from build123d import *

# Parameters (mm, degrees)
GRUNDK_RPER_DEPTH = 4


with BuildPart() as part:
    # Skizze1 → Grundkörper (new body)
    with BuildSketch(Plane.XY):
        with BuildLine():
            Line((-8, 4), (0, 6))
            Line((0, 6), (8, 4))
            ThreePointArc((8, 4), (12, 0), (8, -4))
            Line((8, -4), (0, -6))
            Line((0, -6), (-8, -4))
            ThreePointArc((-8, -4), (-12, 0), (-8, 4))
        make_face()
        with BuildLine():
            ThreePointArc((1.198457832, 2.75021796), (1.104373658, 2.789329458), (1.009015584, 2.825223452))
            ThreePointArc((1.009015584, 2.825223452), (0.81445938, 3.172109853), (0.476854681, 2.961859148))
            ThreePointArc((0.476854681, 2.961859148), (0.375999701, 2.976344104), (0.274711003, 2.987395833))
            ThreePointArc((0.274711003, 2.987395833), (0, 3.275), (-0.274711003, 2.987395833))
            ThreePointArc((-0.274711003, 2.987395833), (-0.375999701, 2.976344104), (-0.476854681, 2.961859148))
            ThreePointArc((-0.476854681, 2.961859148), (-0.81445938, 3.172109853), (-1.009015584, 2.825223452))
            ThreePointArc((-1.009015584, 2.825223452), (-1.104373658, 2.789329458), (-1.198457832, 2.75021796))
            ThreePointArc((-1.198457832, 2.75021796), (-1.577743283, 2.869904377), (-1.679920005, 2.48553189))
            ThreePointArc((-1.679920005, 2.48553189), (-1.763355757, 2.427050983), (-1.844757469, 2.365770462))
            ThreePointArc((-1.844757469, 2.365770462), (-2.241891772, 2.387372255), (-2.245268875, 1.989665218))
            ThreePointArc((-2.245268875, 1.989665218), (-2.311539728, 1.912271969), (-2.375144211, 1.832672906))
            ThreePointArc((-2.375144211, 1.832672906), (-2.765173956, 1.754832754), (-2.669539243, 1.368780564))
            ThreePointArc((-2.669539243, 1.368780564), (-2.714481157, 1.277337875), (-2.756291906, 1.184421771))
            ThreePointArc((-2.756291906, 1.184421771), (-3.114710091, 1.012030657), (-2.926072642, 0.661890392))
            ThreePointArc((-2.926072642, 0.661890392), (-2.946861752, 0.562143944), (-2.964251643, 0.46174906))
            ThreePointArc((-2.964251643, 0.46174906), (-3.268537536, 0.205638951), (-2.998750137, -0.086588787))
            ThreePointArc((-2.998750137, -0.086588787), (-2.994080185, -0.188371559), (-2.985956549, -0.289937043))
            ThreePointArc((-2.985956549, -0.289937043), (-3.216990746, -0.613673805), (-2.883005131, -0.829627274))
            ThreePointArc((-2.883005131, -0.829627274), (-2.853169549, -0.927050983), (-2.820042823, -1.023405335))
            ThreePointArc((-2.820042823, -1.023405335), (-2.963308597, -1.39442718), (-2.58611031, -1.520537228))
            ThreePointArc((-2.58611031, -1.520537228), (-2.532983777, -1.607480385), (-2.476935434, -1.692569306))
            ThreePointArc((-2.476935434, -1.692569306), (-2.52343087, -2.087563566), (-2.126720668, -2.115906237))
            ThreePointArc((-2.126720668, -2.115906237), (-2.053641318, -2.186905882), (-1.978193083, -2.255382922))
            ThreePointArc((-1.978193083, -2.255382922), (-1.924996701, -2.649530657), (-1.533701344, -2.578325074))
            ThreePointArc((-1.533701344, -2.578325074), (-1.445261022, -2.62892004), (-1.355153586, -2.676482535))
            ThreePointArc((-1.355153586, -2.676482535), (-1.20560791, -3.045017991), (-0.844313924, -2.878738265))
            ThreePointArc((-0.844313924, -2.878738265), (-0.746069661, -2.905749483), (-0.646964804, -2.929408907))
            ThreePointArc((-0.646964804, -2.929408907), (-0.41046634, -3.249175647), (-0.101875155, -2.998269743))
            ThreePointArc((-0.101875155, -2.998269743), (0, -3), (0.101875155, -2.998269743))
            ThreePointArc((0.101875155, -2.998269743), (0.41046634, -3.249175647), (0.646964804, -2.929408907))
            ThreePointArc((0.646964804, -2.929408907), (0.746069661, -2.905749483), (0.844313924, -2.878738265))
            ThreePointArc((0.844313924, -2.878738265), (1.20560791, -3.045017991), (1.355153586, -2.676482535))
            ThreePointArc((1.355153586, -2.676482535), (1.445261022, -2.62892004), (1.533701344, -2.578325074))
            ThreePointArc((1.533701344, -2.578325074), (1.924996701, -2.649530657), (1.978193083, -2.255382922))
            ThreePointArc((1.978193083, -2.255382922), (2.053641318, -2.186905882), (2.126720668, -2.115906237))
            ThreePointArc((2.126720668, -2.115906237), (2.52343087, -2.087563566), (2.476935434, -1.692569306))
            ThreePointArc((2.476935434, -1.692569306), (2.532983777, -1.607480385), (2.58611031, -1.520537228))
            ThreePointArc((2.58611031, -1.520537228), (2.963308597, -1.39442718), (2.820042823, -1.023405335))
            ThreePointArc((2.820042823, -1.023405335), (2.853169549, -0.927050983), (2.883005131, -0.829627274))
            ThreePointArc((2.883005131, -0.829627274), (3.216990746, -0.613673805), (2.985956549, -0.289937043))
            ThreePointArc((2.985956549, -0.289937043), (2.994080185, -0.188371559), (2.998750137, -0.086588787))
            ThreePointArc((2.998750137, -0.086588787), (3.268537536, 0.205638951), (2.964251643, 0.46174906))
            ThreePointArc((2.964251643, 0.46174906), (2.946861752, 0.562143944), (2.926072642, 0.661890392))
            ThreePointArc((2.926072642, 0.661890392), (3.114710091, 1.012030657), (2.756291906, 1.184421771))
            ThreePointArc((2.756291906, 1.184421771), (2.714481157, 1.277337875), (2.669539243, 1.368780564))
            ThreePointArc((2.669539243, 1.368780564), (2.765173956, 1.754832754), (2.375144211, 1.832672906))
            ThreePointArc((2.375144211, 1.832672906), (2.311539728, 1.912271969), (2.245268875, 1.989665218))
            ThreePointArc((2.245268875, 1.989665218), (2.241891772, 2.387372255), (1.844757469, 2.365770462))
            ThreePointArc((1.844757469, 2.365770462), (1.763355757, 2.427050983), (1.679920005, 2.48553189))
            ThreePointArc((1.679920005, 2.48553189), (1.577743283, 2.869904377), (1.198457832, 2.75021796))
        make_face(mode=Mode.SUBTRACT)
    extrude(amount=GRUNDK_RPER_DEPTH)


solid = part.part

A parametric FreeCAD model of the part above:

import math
import FreeCAD as App
import Part
import Sketcher

V = App.Vector
Q = App.Units.Quantity

doc = App.newDocument("Part")
params = doc.addObject("Spreadsheet::Sheet", "Params")
for row, (alias, value) in enumerate([
    ("sketch1_radius", "4 mm"),
    ("sketch1_radius2", "3 mm"),
    ("pad1_length", "4 mm"),
], start=1):
    params.set(f"A{row}", alias)
    params.set(f"B{row}", "=" + value)
    params.setAlias(f"B{row}", alias)

body = doc.addObject("PartDesign::Body", "Body")

sketch1 = doc.addObject("Sketcher::SketchObject", "Sketch")
body.addObject(sketch1)
sketch1.AttachmentSupport = (doc.XY_Plane, [""])
sketch1.MapMode = "FlatFace"
sketch1.addGeometry([
    Part.LineSegment(V(0, 6, 0), V(-8, 4, 0)),
    Part.ArcOfCircle(Part.Circle(V(-8, 0, 0), V(0, 0, 1), 4), math.radians(90), math.radians(270)),
    Part.LineSegment(V(-8, -4, 0), V(0, -6, 0)),
    Part.LineSegment(V(0, -6, 0), V(8, -4, 0)),
    Part.ArcOfCircle(Part.Circle(V(8, 0, 0), V(0, 0, 1), 4), math.radians(-90), math.radians(90)),
    Part.LineSegment(V(8, 4, 0), V(0, 6, 0)),
    Part.ArcOfCircle(Part.Circle(V(1.45, 2.63, 0), V(0, 0, 1), 0.28), math.radians(-31), math.radians(154)),
    Part.ArcOfCircle(Part.Circle(V(0, 0, 0), V(0, 0, 1), 3), math.radians(52.05), math.radians(55.95)),
    Part.ArcOfCircle(Part.Circle(V(2.05, 2.19, 0), V(0, 0, 1), 0.28), math.radians(-46), math.radians(139)),
    Part.ArcOfCircle(Part.Circle(V(0, 0, 0), V(0, 0, 1), 3), math.radians(37.65), math.radians(41.55)),
    Part.ArcOfCircle(Part.Circle(V(2.53, 1.61, 0), V(0, 0, 1), 0.28), math.radians(-60), math.radians(125)),
    Part.ArcOfCircle(Part.Circle(V(0, 0, 0), V(0, 0, 1), 3), math.radians(23.25), math.radians(27.15)),
    Part.ArcOfCircle(Part.Circle(V(2.85, 0.93, 0), V(0, 0, 1), 0.28), math.radians(-75), math.radians(111)),
    Part.ArcOfCircle(Part.Circle(V(0, 0, 0), V(0, 0, 1), 3), math.radians(8.85), math.radians(12.75)),
    Part.ArcOfCircle(Part.Circle(V(2.99, 0.19, 0), V(0, 0, 1), 0.28), math.radians(-89), math.radians(96)),
    Part.ArcOfCircle(Part.Circle(V(0, 0, 0), V(0, 0, 1), 3), math.radians(-5.55), math.radians(-1.65)),
    Part.ArcOfCircle(Part.Circle(V(2.95, -0.56, 0), V(0, 0, 1), 0.28), math.radians(-103), math.radians(82)),
    Part.ArcOfCircle(Part.Circle(V(0, 0, 0), V(0, 0, 1), 3), math.radians(-19.95), math.radians(-16.05)),
    Part.ArcOfCircle(Part.Circle(V(2.71, -1.28, 0), V(0, 0, 1), 0.28), math.radians(-118), math.radians(67)),
    Part.ArcOfCircle(Part.Circle(V(0, 0, 0), V(0, 0, 1), 3), math.radians(-34.35), math.radians(-30.45)),
    Part.ArcOfCircle(Part.Circle(V(2.31, -1.91, 0), V(0, 0, 1), 0.28), math.radians(-132), math.radians(53)),
    Part.ArcOfCircle(Part.Circle(V(0, 0, 0), V(0, 0, 1), 3), math.radians(-48.75), math.radians(-44.85)),
    Part.ArcOfCircle(Part.Circle(V(1.76, -2.43, 0), V(0, 0, 1), 0.28), math.radians(-147), math.radians(39)),
    Part.ArcOfCircle(Part.Circle(V(0, 0, 0), V(0, 0, 1), 3), math.radians(-63.15), math.radians(-59.25)),
    Part.ArcOfCircle(Part.Circle(V(1.1, -2.79, 0), V(0, 0, 1), 0.28), math.radians(-161), math.radians(24)),
    Part.ArcOfCircle(Part.Circle(V(0, 0, 0), V(0, 0, 1), 3), math.radians(-77.55), math.radians(-73.65)),
    Part.ArcOfCircle(Part.Circle(V(0.38, -2.98, 0), V(0, 0, 1), 0.28), math.radians(-175), math.radians(10)),
    Part.ArcOfCircle(Part.Circle(V(0, 0, 0), V(0, 0, 1), 3), math.radians(-91.95), math.radians(-88.05)),
    Part.ArcOfCircle(Part.Circle(V(-0.38, -2.98, 0), V(0, 0, 1), 0.28), math.radians(170), math.radians(355)),
    Part.ArcOfCircle(Part.Circle(V(0, 0, 0), V(0, 0, 1), 3), math.radians(-106.35), math.radians(-102.45)),
    Part.ArcOfCircle(Part.Circle(V(-1.1, -2.79, 0), V(0, 0, 1), 0.28), math.radians(156), math.radians(341)),
    Part.ArcOfCircle(Part.Circle(V(0, 0, 0), V(0, 0, 1), 3), math.radians(-120.75), math.radians(-116.85)),
    Part.ArcOfCircle(Part.Circle(V(-1.76, -2.43, 0), V(0, 0, 1), 0.28), math.radians(141), math.radians(327)),
    Part.ArcOfCircle(Part.Circle(V(0, 0, 0), V(0, 0, 1), 3), math.radians(-135.15), math.radians(-131.25)),
    Part.ArcOfCircle(Part.Circle(V(-2.31, -1.91, 0), V(0, 0, 1), 0.28), math.radians(127), math.radians(312)),
    Part.ArcOfCircle(Part.Circle(V(0, 0, 0), V(0, 0, 1), 3), math.radians(-149.55), math.radians(-145.65)),
    Part.ArcOfCircle(Part.Circle(V(-2.71, -1.28, 0), V(0, 0, 1), 0.28), math.radians(113), math.radians(298)),
    Part.ArcOfCircle(Part.Circle(V(0, 0, 0), V(0, 0, 1), 3), math.radians(-163.95), math.radians(-160.05)),
    Part.ArcOfCircle(Part.Circle(V(-2.95, -0.56, 0), V(0, 0, 1), 0.28), math.radians(98), math.radians(283)),
    Part.ArcOfCircle(Part.Circle(V(0, 0, 0), V(0, 0, 1), 3), math.radians(-178.35), math.radians(-174.45)),
    Part.ArcOfCircle(Part.Circle(V(-2.99, 0.19, 0), V(0, 0, 1), 0.28), math.radians(84), math.radians(269)),
    Part.ArcOfCircle(Part.Circle(V(0, 0, 0), V(0, 0, 1), 3), math.radians(167.25), math.radians(171.15)),
    Part.ArcOfCircle(Part.Circle(V(-2.85, 0.93, 0), V(0, 0, 1), 0.28), math.radians(69), math.radians(255)),
    Part.ArcOfCircle(Part.Circle(V(0, 0, 0), V(0, 0, 1), 3), math.radians(152.85), math.radians(156.75)),
    Part.ArcOfCircle(Part.Circle(V(-2.53, 1.61, 0), V(0, 0, 1), 0.28), math.radians(55), math.radians(240)),
    Part.ArcOfCircle(Part.Circle(V(0, 0, 0), V(0, 0, 1), 3), math.radians(138.45), math.radians(142.35)),
    Part.ArcOfCircle(Part.Circle(V(-2.05, 2.19, 0), V(0, 0, 1), 0.28), math.radians(41), math.radians(226)),
    Part.ArcOfCircle(Part.Circle(V(0, 0, 0), V(0, 0, 1), 3), math.radians(124.05), math.radians(127.95)),
    Part.ArcOfCircle(Part.Circle(V(-1.45, 2.63, 0), V(0, 0, 1), 0.28), math.radians(26), math.radians(211)),
    Part.ArcOfCircle(Part.Circle(V(0, 0, 0), V(0, 0, 1), 3), math.radians(109.65), math.radians(113.55)),
    Part.ArcOfCircle(Part.Circle(V(-0.75, 2.91, 0), V(0, 0, 1), 0.28), math.radians(12), math.radians(197)),
    Part.ArcOfCircle(Part.Circle(V(0, 0, 0), V(0, 0, 1), 3), math.radians(95.25), math.radians(99.15)),
    Part.ArcOfCircle(Part.Circle(V(0, 3, 0), V(0, 0, 1), 0.28), math.radians(-3), math.radians(183)),
    Part.ArcOfCircle(Part.Circle(V(0, 0, 0), V(0, 0, 1), 3), math.radians(80.85), math.radians(84.75)),
    Part.ArcOfCircle(Part.Circle(V(0.75, 2.91, 0), V(0, 0, 1), 0.28), math.radians(-17), math.radians(168)),
    Part.ArcOfCircle(Part.Circle(V(0, 0, 0), V(0, 0, 1), 3), math.radians(66.45), math.radians(70.35)),
], False)
sketch1.addConstraint([
    Sketcher.Constraint("Coincident", 0, 2, 1, 1),
    Sketcher.Constraint("Coincident", 1, 2, 2, 1),
    Sketcher.Constraint("Coincident", 2, 2, 3, 1),
    Sketcher.Constraint("Coincident", 3, 2, 4, 1),
    Sketcher.Constraint("Coincident", 4, 2, 5, 1),
    Sketcher.Constraint("Coincident", 5, 2, 0, 1),
    Sketcher.Constraint("Coincident", 6, 1, 7, 2),
    Sketcher.Constraint("Coincident", 7, 1, 8, 2),
    Sketcher.Constraint("Coincident", 8, 1, 9, 2),
    Sketcher.Constraint("Coincident", 9, 1, 10, 2),
    Sketcher.Constraint("Coincident", 10, 1, 11, 2),
    Sketcher.Constraint("Coincident", 11, 1, 12, 2),
    Sketcher.Constraint("Coincident", 12, 1, 13, 2),
    Sketcher.Constraint("Coincident", 13, 1, 14, 2),
    Sketcher.Constraint("Coincident", 14, 1, 15, 2),
    Sketcher.Constraint("Coincident", 15, 1, 16, 2),
    Sketcher.Constraint("Coincident", 16, 1, 17, 2),
    Sketcher.Constraint("Coincident", 17, 1, 18, 2),
    Sketcher.Constraint("Coincident", 18, 1, 19, 2),
    Sketcher.Constraint("Coincident", 19, 1, 20, 2),
    Sketcher.Constraint("Coincident", 20, 1, 21, 2),
    Sketcher.Constraint("Coincident", 21, 1, 22, 2),
    Sketcher.Constraint("Coincident", 22, 1, 23, 2),
    Sketcher.Constraint("Coincident", 23, 1, 24, 2),
    Sketcher.Constraint("Coincident", 24, 1, 25, 2),
    Sketcher.Constraint("Coincident", 25, 1, 26, 2),
    Sketcher.Constraint("Coincident", 26, 1, 27, 2),
    Sketcher.Constraint("Coincident", 27, 1, 28, 2),
    Sketcher.Constraint("Coincident", 28, 1, 29, 2),
    Sketcher.Constraint("Coincident", 29, 1, 30, 2),
    Sketcher.Constraint("Coincident", 30, 1, 31, 2),
    Sketcher.Constraint("Coincident", 31, 1, 32, 2),
    Sketcher.Constraint("Coincident", 32, 1, 33, 2),
    Sketcher.Constraint("Coincident", 33, 1, 34, 2),
    Sketcher.Constraint("Coincident", 34, 1, 35, 2),
    Sketcher.Constraint("Coincident", 35, 1, 36, 2),
    Sketcher.Constraint("Coincident", 36, 1, 37, 2),
    Sketcher.Constraint("Coincident", 37, 1, 38, 2),
    Sketcher.Constraint("Coincident", 38, 1, 39, 2),
    Sketcher.Constraint("Coincident", 39, 1, 40, 2),
    Sketcher.Constraint("Coincident", 40, 1, 41, 2),
    Sketcher.Constraint("Coincident", 41, 1, 42, 2),
    Sketcher.Constraint("Coincident", 42, 1, 43, 2),
    Sketcher.Constraint("Coincident", 43, 1, 44, 2),
    Sketcher.Constraint("Coincident", 44, 1, 45, 2),
    Sketcher.Constraint("Coincident", 45, 1, 46, 2),
    Sketcher.Constraint("Coincident", 46, 1, 47, 2),
    Sketcher.Constraint("Coincident", 47, 1, 48, 2),
    Sketcher.Constraint("Coincident", 48, 1, 49, 2),
    Sketcher.Constraint("Coincident", 49, 1, 50, 2),
    Sketcher.Constraint("Coincident", 50, 1, 51, 2),
    Sketcher.Constraint("Coincident", 51, 1, 52, 2),
    Sketcher.Constraint("Coincident", 52, 1, 53, 2),
    Sketcher.Constraint("Coincident", 53, 1, 54, 2),
    Sketcher.Constraint("Coincident", 54, 1, 55, 2),
    Sketcher.Constraint("Coincident", 55, 1, 6, 2),
    Sketcher.Constraint("Coincident", 7, 3, -1, 1),
    Sketcher.Constraint("Coincident", 9, 3, -1, 1),
    Sketcher.Constraint("Coincident", 11, 3, -1, 1),
    Sketcher.Constraint("Coincident", 13, 3, -1, 1),
    Sketcher.Constraint("Coincident", 15, 3, -1, 1),
    Sketcher.Constraint("Coincident", 17, 3, -1, 1),
    Sketcher.Constraint("Coincident", 19, 3, -1, 1),
    Sketcher.Constraint("Coincident", 21, 3, -1, 1),
    Sketcher.Constraint("Coincident", 23, 3, -1, 1),
    Sketcher.Constraint("Coincident", 25, 3, -1, 1),
    Sketcher.Constraint("Coincident", 27, 3, -1, 1),
    Sketcher.Constraint("Coincident", 29, 3, -1, 1),
    Sketcher.Constraint("Coincident", 31, 3, -1, 1),
    Sketcher.Constraint("Coincident", 33, 3, -1, 1),
    Sketcher.Constraint("Coincident", 35, 3, -1, 1),
    Sketcher.Constraint("Coincident", 37, 3, -1, 1),
    Sketcher.Constraint("Coincident", 39, 3, -1, 1),
    Sketcher.Constraint("Coincident", 41, 3, -1, 1),
    Sketcher.Constraint("Coincident", 43, 3, -1, 1),
    Sketcher.Constraint("Coincident", 45, 3, -1, 1),
    Sketcher.Constraint("Coincident", 47, 3, -1, 1),
    Sketcher.Constraint("Coincident", 49, 3, -1, 1),
    Sketcher.Constraint("Coincident", 51, 3, -1, 1),
    Sketcher.Constraint("Coincident", 53, 3, -1, 1),
    Sketcher.Constraint("Coincident", 55, 3, -1, 1),
    Sketcher.Constraint("Equal", 1, 4),
    Sketcher.Constraint("Equal", 6, 8),
    Sketcher.Constraint("Equal", 7, 9),
    Sketcher.Constraint("Equal", 8, 10),
    Sketcher.Constraint("Equal", 9, 11),
    Sketcher.Constraint("Equal", 10, 12),
    Sketcher.Constraint("Equal", 11, 13),
    Sketcher.Constraint("Equal", 12, 14),
    Sketcher.Constraint("Equal", 13, 15),
    Sketcher.Constraint("Equal", 14, 16),
    Sketcher.Constraint("Equal", 15, 17),
    Sketcher.Constraint("Equal", 16, 18),
    Sketcher.Constraint("Equal", 17, 19),
    Sketcher.Constraint("Equal", 18, 20),
    Sketcher.Constraint("Equal", 19, 21),
    Sketcher.Constraint("Equal", 20, 22),
    Sketcher.Constraint("Equal", 21, 23),
    Sketcher.Constraint("Equal", 22, 24),
    Sketcher.Constraint("Equal", 23, 25),
    Sketcher.Constraint("Equal", 24, 26),
    Sketcher.Constraint("Equal", 25, 27),
    Sketcher.Constraint("Equal", 26, 28),
    Sketcher.Constraint("Equal", 27, 29),
    Sketcher.Constraint("Equal", 28, 30),
    Sketcher.Constraint("Equal", 29, 31),
    Sketcher.Constraint("Equal", 30, 32),
    Sketcher.Constraint("Equal", 31, 33),
    Sketcher.Constraint("Equal", 32, 34),
    Sketcher.Constraint("Equal", 33, 35),
    Sketcher.Constraint("Equal", 34, 36),
    Sketcher.Constraint("Equal", 35, 37),
    Sketcher.Constraint("Equal", 36, 38),
    Sketcher.Constraint("Equal", 37, 39),
    Sketcher.Constraint("Equal", 38, 40),
    Sketcher.Constraint("Equal", 39, 41),
    Sketcher.Constraint("Equal", 40, 42),
    Sketcher.Constraint("Equal", 41, 43),
    Sketcher.Constraint("Equal", 42, 44),
    Sketcher.Constraint("Equal", 43, 45),
    Sketcher.Constraint("Equal", 44, 46),
    Sketcher.Constraint("Equal", 45, 47),
    Sketcher.Constraint("Equal", 46, 48),
    Sketcher.Constraint("Equal", 47, 49),
    Sketcher.Constraint("Equal", 48, 50),
    Sketcher.Constraint("Equal", 49, 51),
    Sketcher.Constraint("Equal", 50, 52),
    Sketcher.Constraint("Equal", 51, 53),
    Sketcher.Constraint("Equal", 52, 54),
    Sketcher.Constraint("Equal", 53, 55),
    Sketcher.Constraint("Symmetric", 1, 3, 4, 3, -1, 1),
    Sketcher.Constraint("Symmetric", 2, 2, 5, 2, -1, 1),
    Sketcher.Constraint("Symmetric", 26, 3, 28, 3, -2),
    Sketcher.Constraint("Symmetric", 24, 3, 30, 3, -2),
    Sketcher.Constraint("Symmetric", 22, 3, 32, 3, -2),
    Sketcher.Constraint("Symmetric", 20, 3, 34, 3, -2),
    Sketcher.Constraint("Symmetric", 18, 3, 36, 3, -2),
    Sketcher.Constraint("Symmetric", 16, 3, 38, 3, -2),
    Sketcher.Constraint("Symmetric", 14, 3, 40, 3, -2),
    Sketcher.Constraint("Symmetric", 12, 3, 42, 3, -2),
    Sketcher.Constraint("Symmetric", 10, 3, 44, 3, -2),
    Sketcher.Constraint("Symmetric", 8, 3, 46, 3, -2),
    Sketcher.Constraint("Symmetric", 6, 3, 48, 3, -2),
    Sketcher.Constraint("Symmetric", 50, 3, 54, 3, -2),
    Sketcher.Constraint("Symmetric", 1, 2, 3, 2, -2),
    Sketcher.Constraint("PointOnObject", 52, 3, -2),
    Sketcher.Constraint("PointOnObject", 2, 2, -2),
    Sketcher.Constraint("Parallel", 0, 3),
    Sketcher.Constraint("Parallel", 2, 5),
    Sketcher.Constraint("Vertical", 1, 3, 0, 2),
    Sketcher.Constraint("Radius", 1, Q("4 mm")),
    Sketcher.Constraint("Radius", 7, Q("3 mm")),
    Sketcher.Constraint("DistanceX", 1, 3, -1, 1, Q("8 mm")),
    Sketcher.Constraint("DistanceY", -1, 1, 52, 3, Q("3 mm")),
    Sketcher.Constraint("DistanceY", 2, 2, -1, 1, Q("6 mm")),
    Sketcher.Constraint("Radius", 6, Q("0.275 mm")),
    Sketcher.Constraint("DistanceX", -1, 1, 26, 3, Q("0.376 mm")),
    Sketcher.Constraint("DistanceX", -1, 1, 22, 1, Q("1.533701 mm")),
    Sketcher.Constraint("DistanceX", -1, 1, 6, 3, Q("1.445261 mm")),
    Sketcher.Constraint("DistanceY", -1, 1, 6, 3, Q("2.62892 mm")),
    Sketcher.Constraint("DistanceX", -1, 1, 8, 3, Q("2.053641 mm")),
    Sketcher.Constraint("DistanceY", -1, 1, 10, 3, Q("1.60748 mm")),
    Sketcher.Constraint("DistanceX", -1, 1, 12, 3, Q("2.85317 mm")),
    Sketcher.Constraint("DistanceY", -1, 1, 12, 3, Q("0.927051 mm")),
    Sketcher.Constraint("DistanceX", -1, 1, 14, 3, Q("2.99408 mm")),
    Sketcher.Constraint("DistanceY", -1, 1, 14, 3, Q("0.188372 mm")),
    Sketcher.Constraint("DistanceX", -1, 1, 16, 3, Q("2.946862 mm")),
    Sketcher.Constraint("DistanceX", -1, 1, 18, 3, Q("2.714481 mm")),
    Sketcher.Constraint("DistanceX", -1, 1, 20, 3, Q("2.31154 mm")),
    Sketcher.Constraint("DistanceY", 20, 3, -1, 1, Q("1.912272 mm")),
    Sketcher.Constraint("DistanceY", 22, 3, -1, 1, Q("2.427051 mm")),
    Sketcher.Constraint("DistanceY", 24, 3, -1, 1, Q("2.789329 mm")),
    Sketcher.Constraint("DistanceX", 50, 3, -1, 1, Q("0.74607 mm")),
    Sketcher.Constraint("DistanceY", -1, 1, 50, 3, Q("2.905749 mm")),
    Sketcher.Constraint("DistanceY", -1, 1, 7, 1, Q("2.36577 mm")),
    Sketcher.Constraint("DistanceX", -1, 1, 10, 1, Q("2.669539 mm")),
    Sketcher.Constraint("DistanceX", -1, 1, 18, 1, Q("2.58611 mm")),
    Sketcher.Constraint("DistanceY", 24, 1, -1, 1, Q("2.878738 mm")),
    Sketcher.Constraint("DistanceY", 25, 1, -1, 1, Q("2.929409 mm")),
    Sketcher.Constraint("DistanceY", 16, 3, -1, 1, Q("0.562144 mm")),
])
sketch1.setExpression("Constraints[150]", "Params.sketch1_radius")
sketch1.setExpression("Constraints[151]", "Params.sketch1_radius2")
pad1 = doc.addObject("PartDesign::Pad", "Pad")
body.addObject(pad1)
pad1.Profile = sketch1
pad1.setExpression("Length", "Params.pad1_length")

doc.recompute()
